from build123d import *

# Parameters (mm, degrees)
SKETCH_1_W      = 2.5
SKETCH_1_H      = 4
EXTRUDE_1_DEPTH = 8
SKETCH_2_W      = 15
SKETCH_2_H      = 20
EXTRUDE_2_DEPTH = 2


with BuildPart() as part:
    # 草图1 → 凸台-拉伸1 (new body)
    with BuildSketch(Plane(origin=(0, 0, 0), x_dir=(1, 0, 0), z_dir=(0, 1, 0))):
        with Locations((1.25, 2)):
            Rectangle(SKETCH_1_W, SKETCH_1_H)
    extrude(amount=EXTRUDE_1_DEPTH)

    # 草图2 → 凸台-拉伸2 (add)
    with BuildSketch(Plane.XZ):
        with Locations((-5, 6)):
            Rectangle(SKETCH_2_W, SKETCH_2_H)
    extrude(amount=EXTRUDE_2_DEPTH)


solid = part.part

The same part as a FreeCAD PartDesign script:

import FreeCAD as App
import Part
import Sketcher
from FreeCAD import Vector

doc = App.newDocument("Part")
params = doc.addObject("Spreadsheet::Sheet", "Params")
for row, (alias, value) in enumerate([
    ("sketch1_height", "4 mm"),
    ("sketch1_width", "2.5 mm"),
    ("pad1_length", "8 mm"),
    ("sketch2_width", "15 mm"),
    ("sketch2_height", "20 mm"),
    ("pad2_length", "2 mm"),
], start=1):
    params.set(f"A{row}", alias)
    params.set(f"B{row}", "=" + value)
    params.setAlias(f"B{row}", alias)

body = doc.addObject("PartDesign::Body", "Body")

# Sketch on XZ plane
sketch1 = doc.addObject("Sketcher::SketchObject", "Sketch")
body.addObject(sketch1)
sketch1.AttachmentSupport = (doc.XZ_Plane, [""])
sketch1.MapMode = "FlatFace"
sketch1.addGeometry([
    Part.LineSegment(Vector(0, -4, 0), Vector(0, 0, 0)),
    Part.LineSegment(Vector(0, 0, 0), Vector(2.5, 0, 0)),
    Part.LineSegment(Vector(2.5, 0, 0), Vector(2.5, -4, 0)),
    Part.LineSegment(Vector(2.5, -4, 0), Vector(0, -4, 0)),
], False)
sketch1.addConstraint([
    Sketcher.Constraint("Coincident", 0, 2, 1, 1),
    Sketcher.Constraint("Coincident", 1, 2, 2, 1),
    Sketcher.Constraint("Coincident", 2, 2, 3, 1),
    Sketcher.Constraint("Coincident", 3, 2, 0, 1),
    Sketcher.Constraint("Vertical", 0),
    Sketcher.Constraint("Horizontal", 1),
    Sketcher.Constraint("Vertical", 2),
    Sketcher.Constraint("Horizontal", 3),
    Sketcher.Constraint("Coincident", 0, 2, -1, 1),
    Sketcher.Constraint("DistanceY", 0, 1, 0, 2, 4.0),
    Sketcher.Constraint("DistanceX", 1, 1, 1, 2, 2.5),
])
sketch1.setExpression("Constraints[9]", "Params.sketch1_height")
sketch1.setExpression("Constraints[10]", "Params.sketch1_width")
pad1 = doc.addObject("PartDesign::Pad", "Pad")
body.addObject(pad1)
pad1.Profile = sketch1
pad1.setExpression("Length", "Params.pad1_length")
pad1.Reversed = True

# Sketch on XZ plane
sketch2 = doc.addObject("Sketcher::SketchObject", "Sketch001")
body.addObject(sketch2)
sketch2.AttachmentSupport = (doc.XZ_Plane, [""])
sketch2.MapMode = "FlatFace"
sketch2.addGeometry([
    Part.LineSegment(Vector(-12, 16, 0), Vector(-12, -4, 0)),
    Part.LineSegment(Vector(-12, -4, 0), Vector(2, -4, 0)),
    Part.LineSegment(Vector(2, -4, 0), Vector(2, 16, 0)),
    Part.LineSegment(Vector(2, 16, 0), Vector(-12, 16, 0)),
], False)
sketch2.addConstraint([
    Sketcher.Constraint("Coincident", 0, 2, 1, 1),
    Sketcher.Constraint("Coincident", 1, 2, 2, 1),
    Sketcher.Constraint("Coincident", 2, 2, 3, 1),
    Sketcher.Constraint("Coincident", 3, 2, 0, 1),
    Sketcher.Constraint("Vertical", 0),
    Sketcher.Constraint("Horizontal", 1),
    Sketcher.Constraint("Vertical", 2),
    Sketcher.Constraint("Horizontal", 3),
    Sketcher.Constraint("DistanceX", 1, 1, 1, 2, 15.0),
    Sketcher.Constraint("DistanceY", 0, 2, 0, 1, 20.0),
    Sketcher.Constraint("DistanceY", 0, 2, -1, 1, 4.0),
    Sketcher.Constraint("DistanceX", 0, 2, -1, 1, 12.5),
])
sketch2.setExpression("Constraints[8]", "Params.sketch2_width")
sketch2.setExpression("Constraints[9]", "Params.sketch2_height")
pad2 = doc.addObject("PartDesign::Pad", "Pad001")
body.addObject(pad2)
pad2.Profile = sketch2
pad2.setExpression("Length", "Params.pad2_length")

doc.recompute()
